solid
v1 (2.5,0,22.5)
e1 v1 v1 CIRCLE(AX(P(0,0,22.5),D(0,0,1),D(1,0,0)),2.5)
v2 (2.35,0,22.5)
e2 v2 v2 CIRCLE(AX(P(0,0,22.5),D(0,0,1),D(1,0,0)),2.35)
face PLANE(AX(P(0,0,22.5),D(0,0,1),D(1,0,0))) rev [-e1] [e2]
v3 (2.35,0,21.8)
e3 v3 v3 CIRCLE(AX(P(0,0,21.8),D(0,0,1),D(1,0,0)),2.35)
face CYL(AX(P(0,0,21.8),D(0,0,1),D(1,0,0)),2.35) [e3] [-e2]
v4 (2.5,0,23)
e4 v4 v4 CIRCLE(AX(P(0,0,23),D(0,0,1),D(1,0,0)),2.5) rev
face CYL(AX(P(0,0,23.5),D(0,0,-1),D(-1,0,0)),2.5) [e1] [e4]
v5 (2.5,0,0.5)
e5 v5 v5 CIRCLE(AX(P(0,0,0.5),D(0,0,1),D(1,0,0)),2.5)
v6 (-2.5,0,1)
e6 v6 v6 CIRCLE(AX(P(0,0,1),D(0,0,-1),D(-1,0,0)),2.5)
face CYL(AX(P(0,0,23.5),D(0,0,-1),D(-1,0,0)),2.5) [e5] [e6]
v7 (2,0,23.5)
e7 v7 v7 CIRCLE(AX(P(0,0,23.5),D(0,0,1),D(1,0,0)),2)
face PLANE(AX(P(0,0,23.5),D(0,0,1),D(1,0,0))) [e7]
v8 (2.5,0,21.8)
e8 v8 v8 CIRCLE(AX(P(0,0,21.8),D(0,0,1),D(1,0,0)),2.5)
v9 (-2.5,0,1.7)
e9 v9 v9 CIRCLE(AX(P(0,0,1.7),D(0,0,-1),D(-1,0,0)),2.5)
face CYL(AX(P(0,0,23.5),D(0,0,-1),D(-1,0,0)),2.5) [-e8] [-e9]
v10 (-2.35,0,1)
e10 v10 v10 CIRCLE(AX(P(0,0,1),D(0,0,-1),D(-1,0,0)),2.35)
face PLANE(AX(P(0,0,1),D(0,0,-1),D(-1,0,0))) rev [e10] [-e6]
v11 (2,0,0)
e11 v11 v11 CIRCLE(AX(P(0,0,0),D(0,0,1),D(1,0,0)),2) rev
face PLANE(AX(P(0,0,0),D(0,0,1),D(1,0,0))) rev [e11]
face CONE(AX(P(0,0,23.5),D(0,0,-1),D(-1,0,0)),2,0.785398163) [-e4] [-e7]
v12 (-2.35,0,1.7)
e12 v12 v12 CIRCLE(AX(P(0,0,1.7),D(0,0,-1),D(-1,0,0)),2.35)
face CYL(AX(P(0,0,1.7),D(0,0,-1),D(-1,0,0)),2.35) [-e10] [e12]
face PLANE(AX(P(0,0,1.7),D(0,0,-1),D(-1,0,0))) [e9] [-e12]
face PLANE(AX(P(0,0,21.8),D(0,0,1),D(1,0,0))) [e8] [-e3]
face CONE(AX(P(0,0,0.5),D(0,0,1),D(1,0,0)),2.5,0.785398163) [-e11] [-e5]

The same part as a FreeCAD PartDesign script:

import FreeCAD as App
import Part
import Sketcher
from FreeCAD import Vector
Q = App.Units.Quantity


def edges_at(feature, points):
    """Names of the edges that pass closest to the given points."""
    edges = feature.Shape.Edges
    near = lambda p: min(range(len(edges)), key=lambda i: edges[i].distToShape(Part.Vertex(*p))[0])
    return sorted({f"Edge{near(p) + 1}" for p in points})

doc = App.newDocument("Part")
body = doc.addObject("PartDesign::Body", "Body")

# Sketch on XY plane
sketch1 = doc.addObject("Sketcher::SketchObject", "Sketch")
body.addObject(sketch1)
sketch1.AttachmentSupport = (doc.XY_Plane, [""])
sketch1.MapMode = "FlatFace"
sketch1.addGeometry(Part.Circle(Vector(0, 0, 0), Vector(0, 0, 1), 2.5), False)
sketch1.addConstraint(Sketcher.Constraint("Coincident", 0, 3, -1, 1))
sketch1.addConstraint(Sketcher.Constraint("Diameter", 0, Q("5 mm")))
pad1 = doc.addObject("PartDesign::Pad", "Pad")
body.addObject(pad1)
pad1.Profile = sketch1
pad1.Length = 23.5
doc.recompute()

chamfer = doc.addObject("PartDesign::Chamfer", "Chamfer")
body.addObject(chamfer)
chamfer.Base = (pad1, edges_at(pad1, [(-2.5, 0, 0), (-2.5, 0, 23.5)]))
chamfer.Size = 0.5

# Sketch on XY plane
sketch2 = doc.addObject("Sketcher::SketchObject", "Sketch001")
body.addObject(sketch2)
sketch2.AttachmentSupport = (doc.XY_Plane, [""])
sketch2.MapMode = "FlatFace"
sketch2.AttachmentOffset = App.Placement(Vector(0, 0, 21.8), App.Rotation())
sketch2.addGeometry(Part.Circle(Vector(0, 0, 0), Vector(0, 0, 1), 2.5), False)
sketch2.addGeometry(Part.Circle(Vector(0, 0, 0), Vector(0, 0, 1), 2.4), False)
sketch2.addConstraint(Sketcher.Constraint("Coincident", 0, 3, -1, 1))
sketch2.addConstraint(Sketcher.Constraint("Coincident", 1, 3, -1, 1))
sketch2.addConstraint(Sketcher.Constraint("Diameter", 0, Q("5 mm")))
sketch2.addConstraint(Sketcher.Constraint("Diameter", 1, Q("4.7 mm")))
pocket1 = doc.addObject("PartDesign::Pocket", "Pocket")
body.addObject(pocket1)
pocket1.Profile = sketch2
pocket1.Length = 0.7
pocket1.Reversed = True

# Sketch on XY plane
sketch3 = doc.addObject("Sketcher::SketchObject", "Sketch002")
body.addObject(sketch3)
sketch3.AttachmentSupport = (doc.XY_Plane, [""])
sketch3.MapMode = "FlatFace"
sketch3.AttachmentOffset = App.Placement(Vector(0, 0, 1), App.Rotation())
sketch3.addGeometry(Part.Circle(Vector(0, 0, 0), Vector(0, 0, 1), 2.5), False)
sketch3.addGeometry(Part.Circle(Vector(0, 0, 0), Vector(0, 0, 1), 2.4), False)
sketch3.addConstraint(Sketcher.Constraint("Coincident", 0, 3, -1, 1))
sketch3.addConstraint(Sketcher.Constraint("Coincident", 1, 3, -1, 1))
sketch3.addConstraint(Sketcher.Constraint("Diameter", 0, Q("5 mm")))
sketch3.addConstraint(Sketcher.Constraint("Diameter", 1, Q("4.7 mm")))
pocket2 = doc.addObject("PartDesign::Pocket", "Pocket001")
body.addObject(pocket2)
pocket2.Profile = sketch3
pocket2.Length = 0.7
pocket2.Reversed = True

doc.recompute()
